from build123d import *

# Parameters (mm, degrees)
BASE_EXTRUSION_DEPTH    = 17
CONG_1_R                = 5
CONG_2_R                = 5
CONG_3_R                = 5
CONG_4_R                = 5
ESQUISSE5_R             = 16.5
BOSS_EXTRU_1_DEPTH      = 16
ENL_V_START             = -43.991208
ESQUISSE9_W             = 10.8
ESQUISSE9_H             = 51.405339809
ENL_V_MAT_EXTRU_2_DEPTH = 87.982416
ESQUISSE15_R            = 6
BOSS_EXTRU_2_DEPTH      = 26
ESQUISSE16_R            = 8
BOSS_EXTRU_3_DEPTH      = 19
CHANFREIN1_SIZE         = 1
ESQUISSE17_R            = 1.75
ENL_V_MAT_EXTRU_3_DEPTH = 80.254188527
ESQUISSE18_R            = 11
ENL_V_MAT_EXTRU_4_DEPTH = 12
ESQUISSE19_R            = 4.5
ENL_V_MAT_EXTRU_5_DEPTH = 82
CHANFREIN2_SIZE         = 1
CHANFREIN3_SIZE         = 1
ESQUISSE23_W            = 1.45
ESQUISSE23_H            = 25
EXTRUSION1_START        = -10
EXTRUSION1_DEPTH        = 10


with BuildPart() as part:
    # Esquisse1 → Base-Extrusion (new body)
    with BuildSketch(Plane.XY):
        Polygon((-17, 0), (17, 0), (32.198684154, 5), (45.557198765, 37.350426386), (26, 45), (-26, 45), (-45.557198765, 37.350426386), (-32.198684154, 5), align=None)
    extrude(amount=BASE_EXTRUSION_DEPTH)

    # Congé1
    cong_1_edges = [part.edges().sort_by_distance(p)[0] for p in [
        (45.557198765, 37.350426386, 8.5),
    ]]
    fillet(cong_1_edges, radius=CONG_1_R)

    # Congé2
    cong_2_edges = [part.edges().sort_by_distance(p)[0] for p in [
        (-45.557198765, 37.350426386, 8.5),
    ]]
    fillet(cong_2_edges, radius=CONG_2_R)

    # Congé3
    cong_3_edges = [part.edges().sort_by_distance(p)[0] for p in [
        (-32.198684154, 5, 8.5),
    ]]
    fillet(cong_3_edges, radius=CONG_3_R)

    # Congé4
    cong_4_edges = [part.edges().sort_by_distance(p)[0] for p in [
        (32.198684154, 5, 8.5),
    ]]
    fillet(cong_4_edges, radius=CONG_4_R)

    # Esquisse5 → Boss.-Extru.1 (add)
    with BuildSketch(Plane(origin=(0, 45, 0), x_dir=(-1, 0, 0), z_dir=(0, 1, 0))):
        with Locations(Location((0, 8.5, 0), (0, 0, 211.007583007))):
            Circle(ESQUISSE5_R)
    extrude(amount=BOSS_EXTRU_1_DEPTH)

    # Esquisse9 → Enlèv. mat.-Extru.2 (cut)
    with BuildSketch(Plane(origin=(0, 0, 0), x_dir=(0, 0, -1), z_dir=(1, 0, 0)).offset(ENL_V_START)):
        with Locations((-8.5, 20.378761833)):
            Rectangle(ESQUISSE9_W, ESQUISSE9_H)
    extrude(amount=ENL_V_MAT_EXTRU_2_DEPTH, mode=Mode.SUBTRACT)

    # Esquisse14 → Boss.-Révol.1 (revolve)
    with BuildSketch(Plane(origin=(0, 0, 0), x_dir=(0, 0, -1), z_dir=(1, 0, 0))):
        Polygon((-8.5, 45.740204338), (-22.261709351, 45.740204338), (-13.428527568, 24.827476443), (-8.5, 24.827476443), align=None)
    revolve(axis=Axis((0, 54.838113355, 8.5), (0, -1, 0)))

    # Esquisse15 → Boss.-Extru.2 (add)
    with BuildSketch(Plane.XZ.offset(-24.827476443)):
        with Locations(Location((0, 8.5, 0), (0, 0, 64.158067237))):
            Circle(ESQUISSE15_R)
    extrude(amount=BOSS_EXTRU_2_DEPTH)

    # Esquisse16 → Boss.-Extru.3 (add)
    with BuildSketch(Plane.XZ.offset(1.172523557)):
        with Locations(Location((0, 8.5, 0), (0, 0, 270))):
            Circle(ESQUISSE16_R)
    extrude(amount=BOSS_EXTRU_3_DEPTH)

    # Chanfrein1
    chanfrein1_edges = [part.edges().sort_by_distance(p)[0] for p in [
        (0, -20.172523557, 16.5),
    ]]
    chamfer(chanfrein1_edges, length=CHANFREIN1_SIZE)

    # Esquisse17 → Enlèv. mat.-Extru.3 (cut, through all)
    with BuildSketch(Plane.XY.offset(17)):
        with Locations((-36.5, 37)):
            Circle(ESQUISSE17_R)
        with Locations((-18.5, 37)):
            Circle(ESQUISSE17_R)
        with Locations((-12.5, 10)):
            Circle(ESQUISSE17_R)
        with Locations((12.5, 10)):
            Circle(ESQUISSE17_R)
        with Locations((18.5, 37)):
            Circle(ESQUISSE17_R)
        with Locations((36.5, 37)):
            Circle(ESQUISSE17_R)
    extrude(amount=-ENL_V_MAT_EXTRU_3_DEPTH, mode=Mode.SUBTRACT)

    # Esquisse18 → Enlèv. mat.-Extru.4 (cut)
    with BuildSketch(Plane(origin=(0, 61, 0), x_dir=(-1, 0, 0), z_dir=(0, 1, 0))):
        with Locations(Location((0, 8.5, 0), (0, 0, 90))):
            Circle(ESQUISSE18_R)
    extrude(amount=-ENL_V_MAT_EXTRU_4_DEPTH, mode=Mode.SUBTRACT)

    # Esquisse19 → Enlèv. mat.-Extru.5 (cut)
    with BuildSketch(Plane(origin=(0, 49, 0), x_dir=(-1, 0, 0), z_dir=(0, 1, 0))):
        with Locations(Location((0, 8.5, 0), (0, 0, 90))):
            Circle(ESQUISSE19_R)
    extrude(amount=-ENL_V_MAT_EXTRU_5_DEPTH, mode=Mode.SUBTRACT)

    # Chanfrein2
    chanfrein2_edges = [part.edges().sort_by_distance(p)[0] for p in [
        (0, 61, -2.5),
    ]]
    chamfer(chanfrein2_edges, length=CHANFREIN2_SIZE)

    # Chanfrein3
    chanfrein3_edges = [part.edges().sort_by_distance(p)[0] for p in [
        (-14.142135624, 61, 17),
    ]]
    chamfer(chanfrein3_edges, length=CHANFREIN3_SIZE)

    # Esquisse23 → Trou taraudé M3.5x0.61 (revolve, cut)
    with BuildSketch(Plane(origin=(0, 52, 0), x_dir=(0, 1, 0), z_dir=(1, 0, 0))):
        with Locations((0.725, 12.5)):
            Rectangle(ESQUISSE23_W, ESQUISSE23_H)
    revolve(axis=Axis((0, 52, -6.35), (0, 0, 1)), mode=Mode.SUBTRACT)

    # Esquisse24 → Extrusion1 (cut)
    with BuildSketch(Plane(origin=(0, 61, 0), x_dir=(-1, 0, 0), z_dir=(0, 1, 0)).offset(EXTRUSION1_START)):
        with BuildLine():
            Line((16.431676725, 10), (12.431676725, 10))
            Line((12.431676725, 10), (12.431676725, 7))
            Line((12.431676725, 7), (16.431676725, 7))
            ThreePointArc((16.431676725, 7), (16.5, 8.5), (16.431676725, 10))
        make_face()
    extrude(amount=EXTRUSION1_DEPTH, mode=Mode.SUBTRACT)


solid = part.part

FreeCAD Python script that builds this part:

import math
import FreeCAD as App
import Part
import Sketcher
from FreeCAD import Vector
Q = App.Units.Quantity


def edges_at(feature, points):
    """Names of the edges that pass closest to the given points."""
    edges = feature.Shape.Edges
    near = lambda p: min(range(len(edges)), key=lambda i: edges[i].distToShape(Part.Vertex(*p))[0])
    return sorted({f"Edge{near(p) + 1}" for p in points})

doc = App.newDocument("Part")
params = doc.addObject("Spreadsheet::Sheet", "Params")
for row, (alias, value) in enumerate([
    ("sketch1_width", "34 mm"),
    ("sketch1_width2", "52 mm"),
    ("sketch1_length", "16 mm"),
    ("sketch1_length2", "35 mm"),
    ("sketch1_length3", "21 mm"),
    ("pad1_length", "17 mm"),
    ("fillet_radius", "5 mm"),
    ("fillet2_radius", "5 mm"),
    ("fillet3_radius", "5 mm"),
    ("fillet4_radius", "5 mm"),
    ("sketch2_diameter", "33 mm"),
    ("pad2_length", "16 mm"),
    ("sketch3_height", "10.8 mm"),
    ("pocket1_length", "87.982416 mm"),
    ("revolution_angle", "360 deg"),
    ("sketch5_diameter", "12 mm"),
    ("pad3_length", "26 mm"),
    ("sketch6_diameter", "16 mm"),
    ("pad4_length", "19 mm"),
    ("chamfer_size", "1 mm"),
    ("sketch7_diameter", "3.5 mm"),
    ("sketch8_diameter", "22 mm"),
    ("pocket3_length", "12 mm"),
    ("sketch9_diameter", "9 mm"),
    ("pocket4_length", "82 mm"),
    ("chamfer2_size", "1 mm"),
    ("chamfer3_size", "1 mm"),
    ("sketch10_height", "25 mm"),
    ("sketch10_width", "1.45 mm"),
    ("groove_angle", "360 deg"),
    ("sketch11_radius", "16.5 mm"),
    ("sketch11_width", "4 mm"),
    ("sketch11_height", "3 mm"),
    ("pocket5_length", "10 mm"),
], start=1):
    params.set(f"A{row}", alias)
    params.set(f"B{row}", "=" + value)
    params.setAlias(f"B{row}", alias)

body = doc.addObject("PartDesign::Body", "Body")

# Sketch on XY plane
sketch1 = body.newObject("Sketcher::SketchObject", "Sketch")
sketch1.AttachmentSupport = (doc.getObject("XY_Plane"), [""])
sketch1.MapMode = "FlatFace"
sketch1.addGeometry([
    Part.LineSegment(Vector(-17, 0, 0), Vector(17, 0, 0)),  # 0
    Part.LineSegment(Vector(17, 0, 0), Vector(32, 5, 0)),  # 1
    Part.LineSegment(Vector(32, 5, 0), Vector(46, 37, 0)),  # 2
    Part.LineSegment(Vector(46, 37, 0), Vector(26, 45, 0)),  # 3
    Part.LineSegment(Vector(26, 45, 0), Vector(-26, 45, 0)),  # 4
    Part.LineSegment(Vector(-26, 45, 0), Vector(-46, 37, 0)),  # 5
    Part.LineSegment(Vector(-46, 37, 0), Vector(-32, 5, 0)),  # 6
    Part.LineSegment(Vector(-32, 5, 0), Vector(-17, 0, 0)),  # 7
], False)
sketch1.addConstraint([
    Sketcher.Constraint("Coincident", 0, 2, 1, 1),
    Sketcher.Constraint("Coincident", 1, 2, 2, 1),
    Sketcher.Constraint("Coincident", 2, 2, 3, 1),
    Sketcher.Constraint("Coincident", 3, 2, 4, 1),
    Sketcher.Constraint("Coincident", 4, 2, 5, 1),
    Sketcher.Constraint("Coincident", 5, 2, 6, 1),
    Sketcher.Constraint("Coincident", 6, 2, 7, 1),
    Sketcher.Constraint("Coincident", 7, 2, 0, 1),
    Sketcher.Constraint("Horizontal", 0),
    Sketcher.Constraint("Horizontal", 4),
    Sketcher.Constraint("Symmetric", 0, 2, 7, 2, -1, 1),
    Sketcher.Constraint("Symmetric", 2, 2, 5, 2, -2),
    Sketcher.Constraint("Symmetric", 1, 2, 6, 2, -2),
    Sketcher.Constraint("Equal", 3, 5),
    Sketcher.Constraint("DistanceX", 0, 1, 0, 2, Q("34 mm")),
    Sketcher.Constraint("DistanceX", 4, 2, 4, 1, Q("52 mm")),
    Sketcher.Constraint("Distance", 1, Q("16 mm")),
    Sketcher.Constraint("Distance", 2, Q("35 mm")),
    Sketcher.Constraint("Distance", 3, Q("21 mm")),
    Sketcher.Constraint("DistanceY", -1, 1, 1, 2, Q("5 mm")),
    Sketcher.Constraint("DistanceY", -1, 1, 3, 2, Q("45 mm")),
])
sketch1.setExpression("Constraints[14]", "Params.sketch1_width")
sketch1.setExpression("Constraints[15]", "Params.sketch1_width2")
sketch1.setExpression("Constraints[16]", "Params.sketch1_length")
sketch1.setExpression("Constraints[17]", "Params.sketch1_length2")
sketch1.setExpression("Constraints[18]", "Params.sketch1_length3")
pad1 = body.newObject("PartDesign::Pad", "Pad")
pad1.Profile = sketch1
pad1.setExpression("Length", "Params.pad1_length")
doc.recompute()

fillet = body.newObject("PartDesign::Fillet", "Fillet")
fillet.Base = (pad1, edges_at(pad1, [(45.557, 37.35, 8.5)]))
fillet.setExpression("Radius", "Params.fillet_radius")
doc.recompute()

fillet2 = body.newObject("PartDesign::Fillet", "Fillet001")
fillet2.Base = (fillet, edges_at(fillet, [(-45.557, 37.35, 8.5)]))
fillet2.setExpression("Radius", "Params.fillet2_radius")
doc.recompute()

fillet3 = body.newObject("PartDesign::Fillet", "Fillet002")
fillet3.Base = (fillet2, edges_at(fillet2, [(-32.199, 5, 8.5)]))
fillet3.setExpression("Radius", "Params.fillet3_radius")
doc.recompute()

fillet4 = body.newObject("PartDesign::Fillet", "Fillet003")
fillet4.Base = (fillet3, edges_at(fillet3, [(32.199, 5, 8.5)]))
fillet4.setExpression("Radius", "Params.fillet4_radius")

# Sketch on XZ plane
sketch2 = body.newObject("Sketcher::SketchObject", "Sketch001")
sketch2.AttachmentSupport = (doc.getObject("XZ_Plane"), [""])
sketch2.MapMode = "FlatFace"
sketch2.AttachmentOffset = App.Placement(Vector(0, 0, -45), App.Rotation())
sketch2.addGeometry(Part.Circle(Vector(0, 8, 0), Vector(0, 0, 1), 16), False)
sketch2.addConstraint([
    Sketcher.Constraint("PointOnObject", 0, 3, -2),
    Sketcher.Constraint("Diameter", 0, Q("33 mm")),
    Sketcher.Constraint("DistanceY", -1, 1, 0, 3, Q("8.5 mm")),
])
sketch2.setExpression("Constraints[1]", "Params.sketch2_diameter")
pad2 = body.newObject("PartDesign::Pad", "Pad001")
pad2.Profile = sketch2
pad2.setExpression("Length", "Params.pad2_length")
pad2.Reversed = True

# Sketch on YZ plane
sketch3 = body.newObject("Sketcher::SketchObject", "Sketch002")
sketch3.AttachmentSupport = (doc.getObject("YZ_Plane"), [""])
sketch3.MapMode = "FlatFace"
sketch3.AttachmentOffset = App.Placement(Vector(0, 0, -43.991208), App.Rotation())
sketch3.addGeometry([
    Part.LineSegment(Vector(46, 14, 0), Vector(-5, 14, 0)),
    Part.LineSegment(Vector(-5, 14, 0), Vector(-5, 3, 0)),
    Part.LineSegment(Vector(-5, 3, 0), Vector(46, 3, 0)),
    Part.LineSegment(Vector(46, 3, 0), Vector(46, 14, 0)),
], False)
sketch3.addConstraint([
    Sketcher.Constraint("Coincident", 0, 2, 1, 1),
    Sketcher.Constraint("Coincident", 1, 2, 2, 1),
    Sketcher.Constraint("Coincident", 2, 2, 3, 1),
    Sketcher.Constraint("Coincident", 3, 2, 0, 1),
    Sketcher.Constraint("Horizontal", 0),
    Sketcher.Constraint("Vertical", 1),
    Sketcher.Constraint("Horizontal", 2),
    Sketcher.Constraint("Vertical", 3),
    Sketcher.Constraint("DistanceY", 1, 2, 1, 1, Q("10.8 mm")),
    Sketcher.Constraint("DistanceY", -1, 1, 0, 2, Q("13.9 mm")),
    Sketcher.Constraint("DistanceX", 0, 2, 0, 1, Q("51.40534 mm")),
    Sketcher.Constraint("DistanceX", 0, 2, -1, 1, Q("5.323908 mm")),
])
sketch3.setExpression("Constraints[8]", "Params.sketch3_height")
pocket1 = body.newObject("PartDesign::Pocket", "Pocket")
pocket1.Profile = sketch3
pocket1.setExpression("Length", "Params.pocket1_length")
pocket1.Reversed = True

# Sketch on YZ plane
sketch4 = body.newObject("Sketcher::SketchObject", "Sketch003")
sketch4.AttachmentSupport = (doc.getObject("YZ_Plane"), [""])
sketch4.MapMode = "FlatFace"
sketch4.addGeometry([
    Part.LineSegment(Vector(45.7, 8.5, 0), Vector(45.7, 22.3, 0)),
    Part.LineSegment(Vector(45.7, 22.3, 0), Vector(24.8, 13.4, 0)),
    Part.LineSegment(Vector(24.8, 13.4, 0), Vector(24.8, 8.5, 0)),
    Part.LineSegment(Vector(24.8, 8.5, 0), Vector(45.7, 8.5, 0)),
], False)
sketch4.addGeometry(Part.LineSegment(Vector(45.7, 8.5, 0), Vector(24.8, 8.5, 0)), True)  # axis
sketch4.addConstraint([
    Sketcher.Constraint("Coincident", 0, 2, 1, 1),
    Sketcher.Constraint("Coincident", 1, 2, 2, 1),
    Sketcher.Constraint("Coincident", 2, 2, 3, 1),
    Sketcher.Constraint("Coincident", 3, 2, 0, 1),
    Sketcher.Constraint("Vertical", 0),
    Sketcher.Constraint("Vertical", 2),
    Sketcher.Constraint("Horizontal", 3),
    Sketcher.Constraint("Horizontal", 4),
    Sketcher.Constraint("Coincident", 4, 1, 3, 2),
    Sketcher.Constraint("Vertical", 1, 2, 4, 2),
    Sketcher.Constraint("DistanceY", -1, 1, 2, 2, Q("8.5 mm")),
    Sketcher.Constraint("DistanceY", 0, 1, 0, 2, Q("13.761709 mm")),
    Sketcher.Constraint("DistanceX", 3, 1, 3, 2, Q("20.912728 mm")),
    Sketcher.Constraint("DistanceY", 2, 2, 2, 1, Q("4.928528 mm")),
    Sketcher.Constraint("DistanceX", -1, 1, 0, 2, Q("45.740204 mm")),
])
revolution = body.newObject("PartDesign::Revolution", "Revolution")
revolution.Profile = sketch4
revolution.ReferenceAxis = (sketch4, ["Axis0"])
revolution.setExpression("Angle", "Params.revolution_angle")

# Sketch on XZ plane
sketch5 = body.newObject("Sketcher::SketchObject", "Sketch004")
sketch5.AttachmentSupport = (doc.getObject("XZ_Plane"), [""])
sketch5.MapMode = "FlatFace"
sketch5.AttachmentOffset = App.Placement(Vector(0, 0, -24.827476), App.Rotation())
sketch5.addGeometry(Part.Circle(Vector(0, 8, 0), Vector(0, 0, 1), 6), False)
sketch5.addConstraint([
    Sketcher.Constraint("PointOnObject", 0, 3, -2),
    Sketcher.Constraint("Diameter", 0, Q("12 mm")),
    Sketcher.Constraint("DistanceY", -1, 1, 0, 3, Q("8.5 mm")),
])
sketch5.setExpression("Constraints[1]", "Params.sketch5_diameter")
pad3 = body.newObject("PartDesign::Pad", "Pad002")
pad3.Profile = sketch5
pad3.setExpression("Length", "Params.pad3_length")

# Sketch on XZ plane
sketch6 = body.newObject("Sketcher::SketchObject", "Sketch005")
sketch6.AttachmentSupport = (doc.getObject("XZ_Plane"), [""])
sketch6.MapMode = "FlatFace"
sketch6.AttachmentOffset = App.Placement(Vector(0, 0, 1.172524), App.Rotation())
sketch6.addGeometry(Part.Circle(Vector(0, 8, 0), Vector(0, 0, 1), 8), False)
sketch6.addConstraint([
    Sketcher.Constraint("PointOnObject", 0, 3, -2),
    Sketcher.Constraint("Diameter", 0, Q("16 mm")),
    Sketcher.Constraint("DistanceY", -1, 1, 0, 3, Q("8.5 mm")),
])
sketch6.setExpression("Constraints[1]", "Params.sketch6_diameter")
pad4 = body.newObject("PartDesign::Pad", "Pad003")
pad4.Profile = sketch6
pad4.setExpression("Length", "Params.pad4_length")
doc.recompute()

chamfer = body.newObject("PartDesign::Chamfer", "Chamfer")
chamfer.Base = (pad4, edges_at(pad4, [(0, -20.173, 16.5)]))
chamfer.setExpression("Size", "Params.chamfer_size")

# Sketch on XY plane
sketch7 = body.newObject("Sketcher::SketchObject", "Sketch006")
sketch7.AttachmentSupport = (doc.getObject("XY_Plane"), [""])
sketch7.MapMode = "FlatFace"
sketch7.AttachmentOffset = App.Placement(Vector(0, 0, 17), App.Rotation())
sketch7.addGeometry([
    Part.Circle(Vector(-36.5, 37, 0), Vector(0, 0, 1), 1.8),  # 0
    Part.Circle(Vector(-18.5, 37, 0), Vector(0, 0, 1), 1.8),  # 1
    Part.Circle(Vector(-12.5, 10, 0), Vector(0, 0, 1), 1.8),  # 2
    Part.Circle(Vector(12.5, 10, 0), Vector(0, 0, 1), 1.8),  # 3
    Part.Circle(Vector(18.5, 37, 0), Vector(0, 0, 1), 1.8),  # 4
    Part.Circle(Vector(36.5, 37, 0), Vector(0, 0, 1), 1.8),  # 5
], False)
sketch7.addConstraint([
    Sketcher.Constraint("Equal", 0, 1),
    Sketcher.Constraint("Equal", 1, 2),
    Sketcher.Constraint("Equal", 2, 3),
    Sketcher.Constraint("Equal", 3, 4),
    Sketcher.Constraint("Equal", 4, 5),
    Sketcher.Constraint("Symmetric", 2, 3, 3, 3, -2),
    Sketcher.Constraint("Symmetric", 1, 3, 4, 3, -2),
    Sketcher.Constraint("Symmetric", 0, 3, 5, 3, -2),
    Sketcher.Constraint("Horizontal", 0, 3, 1, 3),
    Sketcher.Constraint("Diameter", 0, Q("3.5 mm")),
    Sketcher.Constraint("DistanceY", -1, 1, 0, 3, Q("37 mm")),
    Sketcher.Constraint("DistanceY", -1, 1, 2, 3, Q("10 mm")),
    Sketcher.Constraint("DistanceX", 0, 3, 1, 3, Q("18 mm")),
    Sketcher.Constraint("DistanceX", 1, 3, 2, 3, Q("6 mm")),
    Sketcher.Constraint("DistanceX", 2, 3, 3, 3, Q("25 mm")),
])
sketch7.setExpression("Constraints[9]", "Params.sketch7_diameter")
pocket2 = body.newObject("PartDesign::Pocket", "Pocket001")
pocket2.Profile = sketch7
pocket2.Type = "ThroughAll"

# Sketch on XZ plane
sketch8 = body.newObject("Sketcher::SketchObject", "Sketch007")
sketch8.AttachmentSupport = (doc.getObject("XZ_Plane"), [""])
sketch8.MapMode = "FlatFace"
sketch8.AttachmentOffset = App.Placement(Vector(0, 0, -61), App.Rotation())
sketch8.addGeometry(Part.Circle(Vector(0, 8, 0), Vector(0, 0, 1), 11), False)
sketch8.addConstraint([
    Sketcher.Constraint("PointOnObject", 0, 3, -2),
    Sketcher.Constraint("Diameter", 0, Q("22 mm")),
    Sketcher.Constraint("DistanceY", -1, 1, 0, 3, Q("8.5 mm")),
])
sketch8.setExpression("Constraints[1]", "Params.sketch8_diameter")
pocket3 = body.newObject("PartDesign::Pocket", "Pocket002")
pocket3.Profile = sketch8
pocket3.setExpression("Length", "Params.pocket3_length")
pocket3.Reversed = True

# Sketch on XZ plane
sketch9 = body.newObject("Sketcher::SketchObject", "Sketch008")
sketch9.AttachmentSupport = (doc.getObject("XZ_Plane"), [""])
sketch9.MapMode = "FlatFace"
sketch9.AttachmentOffset = App.Placement(Vector(0, 0, -49), App.Rotation())
sketch9.addGeometry(Part.Circle(Vector(0, 8.5, 0), Vector(0, 0, 1), 4.5), False)
sketch9.addConstraint([
    Sketcher.Constraint("PointOnObject", 0, 3, -2),
    Sketcher.Constraint("Diameter", 0, Q("9 mm")),
    Sketcher.Constraint("DistanceY", -1, 1, 0, 3, Q("8.5 mm")),
])
sketch9.setExpression("Constraints[1]", "Params.sketch9_diameter")
pocket4 = body.newObject("PartDesign::Pocket", "Pocket003")
pocket4.Profile = sketch9
pocket4.setExpression("Length", "Params.pocket4_length")
pocket4.Reversed = True
doc.recompute()

chamfer2 = body.newObject("PartDesign::Chamfer", "Chamfer001")
chamfer2.Base = (pocket4, edges_at(pocket4, [(0, 61, -2.5)]))
chamfer2.setExpression("Size", "Params.chamfer2_size")
doc.recompute()

chamfer3 = body.newObject("PartDesign::Chamfer", "Chamfer002")
chamfer3.Base = (chamfer2, edges_at(chamfer2, [(-14.142, 61, 17)]))
chamfer3.setExpression("Size", "Params.chamfer3_size")

# Sketch on YZ plane
sketch10 = body.newObject("Sketcher::SketchObject", "Sketch009")
sketch10.AttachmentSupport = (doc.getObject("YZ_Plane"), [""])
sketch10.MapMode = "FlatFace"
sketch10.addGeometry([
    Part.LineSegment(Vector(52, 25, 0), Vector(52, 0, 0)),
    Part.LineSegment(Vector(52, 0, 0), Vector(53.5, 0, 0)),
    Part.LineSegment(Vector(53.5, 0, 0), Vector(53.5, 25, 0)),
    Part.LineSegment(Vector(53.5, 25, 0), Vector(52, 25, 0)),
], False)
sketch10.addGeometry(Part.LineSegment(Vector(52, 0, 0), Vector(52, 25, 0)), True)  # axis
sketch10.addConstraint([
    Sketcher.Constraint("Coincident", 0, 2, 1, 1),
    Sketcher.Constraint("Coincident", 1, 2, 2, 1),
    Sketcher.Constraint("Coincident", 2, 2, 3, 1),
    Sketcher.Constraint("Coincident", 3, 2, 0, 1),
    Sketcher.Constraint("Vertical", 0),
    Sketcher.Constraint("Horizontal", 1),
    Sketcher.Constraint("Vertical", 2),
    Sketcher.Constraint("Horizontal", 3),
    Sketcher.Constraint("Vertical", 4),
    Sketcher.Constraint("Coincident", 4, 1, 0, 2),
    Sketcher.Constraint("PointOnObject", 0, 2, -1),
    Sketcher.Constraint("Horizontal", 2, 2, 4, 2),
    Sketcher.Constraint("DistanceY", 0, 2, 0, 1, Q("25 mm")),
    Sketcher.Constraint("DistanceX", -1, 1, 0, 2, Q("52 mm")),
    Sketcher.Constraint("DistanceX", 1, 1, 1, 2, Q("1.45 mm")),
])
sketch10.setExpression("Constraints[12]", "Params.sketch10_height")
sketch10.setExpression("Constraints[14]", "Params.sketch10_width")
groove = body.newObject("PartDesign::Groove", "Groove")
groove.Profile = sketch10
groove.ReferenceAxis = (sketch10, ["Axis0"])
groove.setExpression("Angle", "Params.groove_angle")

# Sketch on XZ plane
sketch11 = body.newObject("Sketcher::SketchObject", "Sketch010")
sketch11.AttachmentSupport = (doc.getObject("XZ_Plane"), [""])
sketch11.MapMode = "FlatFace"
sketch11.AttachmentOffset = App.Placement(Vector(0, 0, -51), App.Rotation())
sketch11.addGeometry([
    Part.LineSegment(Vector(-16.4, 10, 0), Vector(-12.4, 10, 0)),
    Part.LineSegment(Vector(-12.4, 10, 0), Vector(-12.4, 7, 0)),
    Part.LineSegment(Vector(-12.4, 7, 0), Vector(-16.4, 7, 0)),
    Part.ArcOfCircle(Part.Circle(Vector(0, 8.5, 0), Vector(0, 0, 1), 16.5), math.radians(174.78), math.radians(185.22)),
], False)
sketch11.addConstraint([
    Sketcher.Constraint("Coincident", 0, 2, 1, 1),
    Sketcher.Constraint("Coincident", 1, 2, 2, 1),
    Sketcher.Constraint("Coincident", 2, 2, 3, 2),
    Sketcher.Constraint("Coincident", 3, 1, 0, 1),
    Sketcher.Constraint("Horizontal", 0),
    Sketcher.Constraint("Vertical", 1),
    Sketcher.Constraint("Horizontal", 2),
    Sketcher.Constraint("PointOnObject", 3, 3, -2),
    Sketcher.Constraint("Vertical", 2, 2, 3, 1),
    Sketcher.Constraint("Radius", 3, Q("16.5 mm")),
    Sketcher.Constraint("DistanceX", 0, 1, 0, 2, Q("4 mm")),
    Sketcher.Constraint("DistanceY", 1, 2, 1, 1, Q("3 mm")),
    Sketcher.Constraint("DistanceY", -1, 1, 0, 2, Q("10 mm")),
])
sketch11.setExpression("Constraints[9]", "Params.sketch11_radius")
sketch11.setExpression("Constraints[10]", "Params.sketch11_width")
sketch11.setExpression("Constraints[11]", "Params.sketch11_height")
pocket5 = body.newObject("PartDesign::Pocket", "Pocket004")
pocket5.Profile = sketch11
pocket5.setExpression("Length", "Params.pocket5_length")

doc.recompute()
